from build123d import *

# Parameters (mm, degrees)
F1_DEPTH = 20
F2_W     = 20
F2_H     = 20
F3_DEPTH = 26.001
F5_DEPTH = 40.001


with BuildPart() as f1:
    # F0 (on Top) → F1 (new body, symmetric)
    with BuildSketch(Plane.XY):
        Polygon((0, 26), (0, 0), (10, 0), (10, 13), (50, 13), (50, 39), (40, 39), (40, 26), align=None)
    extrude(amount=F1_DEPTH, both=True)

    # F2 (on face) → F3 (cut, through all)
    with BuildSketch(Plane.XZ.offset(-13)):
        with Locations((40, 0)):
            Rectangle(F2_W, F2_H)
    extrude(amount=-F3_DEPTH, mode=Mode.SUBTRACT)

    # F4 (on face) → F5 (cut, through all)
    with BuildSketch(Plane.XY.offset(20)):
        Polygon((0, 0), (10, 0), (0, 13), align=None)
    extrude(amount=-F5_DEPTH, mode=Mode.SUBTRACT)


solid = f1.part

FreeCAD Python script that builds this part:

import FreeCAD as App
import Part
import Sketcher

V = App.Vector

doc = App.newDocument("Part")
body = doc.addObject("PartDesign::Body", "Body")

# Sketch on XY plane
sketch1 = body.newObject("Sketcher::SketchObject", "Sketch")
sketch1.AttachmentSupport = (doc.getObject("XY_Plane"), [""])
sketch1.MapMode = "FlatFace"
sketch1.addGeometry(Part.LineSegment(V(0, 26, 0), V(0, 0, 0)), False)
sketch1.addGeometry(Part.LineSegment(V(0, 0, 0), V(10, 0, 0)), False)
sketch1.addGeometry(Part.LineSegment(V(10, 0, 0), V(10, 13, 0)), False)
sketch1.addGeometry(Part.LineSegment(V(10, 13, 0), V(50, 13, 0)), False)
sketch1.addGeometry(Part.LineSegment(V(50, 13, 0), V(50, 39, 0)), False)
sketch1.addGeometry(Part.LineSegment(V(50, 39, 0), V(40, 39, 0)), False)
sketch1.addGeometry(Part.LineSegment(V(40, 39, 0), V(40, 26, 0)), False)
sketch1.addGeometry(Part.LineSegment(V(40, 26, 0), V(0, 26, 0)), False)
sketch1.addConstraint(Sketcher.Constraint("Coincident", 0, 2, 1, 1))
sketch1.addConstraint(Sketcher.Constraint("Coincident", 1, 2, 2, 1))
sketch1.addConstraint(Sketcher.Constraint("Coincident", 2, 2, 3, 1))
sketch1.addConstraint(Sketcher.Constraint("Coincident", 3, 2, 4, 1))
sketch1.addConstraint(Sketcher.Constraint("Coincident", 4, 2, 5, 1))
sketch1.addConstraint(Sketcher.Constraint("Coincident", 5, 2, 6, 1))
sketch1.addConstraint(Sketcher.Constraint("Coincident", 6, 2, 7, 1))
sketch1.addConstraint(Sketcher.Constraint("Coincident", 7, 2, 0, 1))
sketch1.addConstraint(Sketcher.Constraint("Vertical", 0))
sketch1.addConstraint(Sketcher.Constraint("Horizontal", 1))
sketch1.addConstraint(Sketcher.Constraint("Vertical", 2))
sketch1.addConstraint(Sketcher.Constraint("Horizontal", 3))
sketch1.addConstraint(Sketcher.Constraint("Vertical", 4))
sketch1.addConstraint(Sketcher.Constraint("Horizontal", 5))
sketch1.addConstraint(Sketcher.Constraint("Vertical", 6))
sketch1.addConstraint(Sketcher.Constraint("Horizontal", 7))
sketch1.addConstraint(Sketcher.Constraint("Coincident", 0, 2, -1, 1))
sketch1.addConstraint(Sketcher.Constraint("Equal", 1, 5))
sketch1.addConstraint(Sketcher.Constraint("Equal", 0, 4))
sketch1.addConstraint(Sketcher.Constraint("DistanceX", 1, 1, 1, 2, 10.0))
sketch1.addConstraint(Sketcher.Constraint("DistanceX", 3, 1, 3, 2, 40.0))
sketch1.addConstraint(Sketcher.Constraint("DistanceY", 0, 2, 0, 1, 26.0))
sketch1.addConstraint(Sketcher.Constraint("DistanceY", 2, 1, 2, 2, 13.0))
pad1 = body.newObject("PartDesign::Pad", "Pad")
pad1.Profile = sketch1
pad1.Length = 40
pad1.Midplane = True

# Sketch on XZ plane
sketch2 = body.newObject("Sketcher::SketchObject", "Sketch001")
sketch2.AttachmentSupport = (doc.getObject("XZ_Plane"), [""])
sketch2.MapMode = "FlatFace"
sketch2.AttachmentOffset = App.Placement(V(0, 0, -13), App.Rotation())
sketch2.addGeometry(Part.LineSegment(V(30, 10, 0), V(30, -10, 0)), False)
sketch2.addGeometry(Part.LineSegment(V(30, -10, 0), V(50, -10, 0)), False)
sketch2.addGeometry(Part.LineSegment(V(50, -10, 0), V(50, 10, 0)), False)
sketch2.addGeometry(Part.LineSegment(V(50, 10, 0), V(30, 10, 0)), False)
sketch2.addConstraint(Sketcher.Constraint("Coincident", 0, 2, 1, 1))
sketch2.addConstraint(Sketcher.Constraint("Coincident", 1, 2, 2, 1))
sketch2.addConstraint(Sketcher.Constraint("Coincident", 2, 2, 3, 1))
sketch2.addConstraint(Sketcher.Constraint("Coincident", 3, 2, 0, 1))
sketch2.addConstraint(Sketcher.Constraint("Vertical", 0))
sketch2.addConstraint(Sketcher.Constraint("Horizontal", 1))
sketch2.addConstraint(Sketcher.Constraint("Vertical", 2))
sketch2.addConstraint(Sketcher.Constraint("Horizontal", 3))
sketch2.addConstraint(Sketcher.Constraint("Equal", 3, 0))
sketch2.addConstraint(Sketcher.Constraint("DistanceX", 1, 1, 1, 2, 20.0))
sketch2.addConstraint(Sketcher.Constraint("DistanceX", -1, 1, 0, 2, 30.0))
sketch2.addConstraint(Sketcher.Constraint("DistanceY", 0, 2, -1, 1, 10.0))
pocket1 = body.newObject("PartDesign::Pocket", "Pocket")
pocket1.Profile = sketch2
pocket1.Type = "ThroughAll"

# Sketch on XY plane
sketch3 = body.newObject("Sketcher::SketchObject", "Sketch002")
sketch3.AttachmentSupport = (doc.getObject("XY_Plane"), [""])
sketch3.MapMode = "FlatFace"
sketch3.AttachmentOffset = App.Placement(V(0, 0, 20), App.Rotation())
sketch3.addGeometry(Part.LineSegment(V(0, 0, 0), V(10, 0, 0)), False)
sketch3.addGeometry(Part.LineSegment(V(10, 0, 0), V(0, 13, 0)), False)
sketch3.addGeometry(Part.LineSegment(V(0, 13, 0), V(0, 0, 0)), False)
sketch3.addConstraint(Sketcher.Constraint("Coincident", 0, 2, 1, 1))
sketch3.addConstraint(Sketcher.Constraint("Coincident", 1, 2, 2, 1))
sketch3.addConstraint(Sketcher.Constraint("Coincident", 2, 2, 0, 1))
sketch3.addConstraint(Sketcher.Constraint("Horizontal", 0))
sketch3.addConstraint(Sketcher.Constraint("Vertical", 2))
sketch3.addConstraint(Sketcher.Constraint("Coincident", 2, 2, -1, 1))
sketch3.addConstraint(Sketcher.Constraint("DistanceX", 0, 1, 0, 2, 10.0))
sketch3.addConstraint(Sketcher.Constraint("DistanceY", 2, 2, 2, 1, 13.0))
pocket2 = body.newObject("PartDesign::Pocket", "Pocket001")
pocket2.Profile = sketch3
pocket2.Type = "ThroughAll"

doc.recompute()
